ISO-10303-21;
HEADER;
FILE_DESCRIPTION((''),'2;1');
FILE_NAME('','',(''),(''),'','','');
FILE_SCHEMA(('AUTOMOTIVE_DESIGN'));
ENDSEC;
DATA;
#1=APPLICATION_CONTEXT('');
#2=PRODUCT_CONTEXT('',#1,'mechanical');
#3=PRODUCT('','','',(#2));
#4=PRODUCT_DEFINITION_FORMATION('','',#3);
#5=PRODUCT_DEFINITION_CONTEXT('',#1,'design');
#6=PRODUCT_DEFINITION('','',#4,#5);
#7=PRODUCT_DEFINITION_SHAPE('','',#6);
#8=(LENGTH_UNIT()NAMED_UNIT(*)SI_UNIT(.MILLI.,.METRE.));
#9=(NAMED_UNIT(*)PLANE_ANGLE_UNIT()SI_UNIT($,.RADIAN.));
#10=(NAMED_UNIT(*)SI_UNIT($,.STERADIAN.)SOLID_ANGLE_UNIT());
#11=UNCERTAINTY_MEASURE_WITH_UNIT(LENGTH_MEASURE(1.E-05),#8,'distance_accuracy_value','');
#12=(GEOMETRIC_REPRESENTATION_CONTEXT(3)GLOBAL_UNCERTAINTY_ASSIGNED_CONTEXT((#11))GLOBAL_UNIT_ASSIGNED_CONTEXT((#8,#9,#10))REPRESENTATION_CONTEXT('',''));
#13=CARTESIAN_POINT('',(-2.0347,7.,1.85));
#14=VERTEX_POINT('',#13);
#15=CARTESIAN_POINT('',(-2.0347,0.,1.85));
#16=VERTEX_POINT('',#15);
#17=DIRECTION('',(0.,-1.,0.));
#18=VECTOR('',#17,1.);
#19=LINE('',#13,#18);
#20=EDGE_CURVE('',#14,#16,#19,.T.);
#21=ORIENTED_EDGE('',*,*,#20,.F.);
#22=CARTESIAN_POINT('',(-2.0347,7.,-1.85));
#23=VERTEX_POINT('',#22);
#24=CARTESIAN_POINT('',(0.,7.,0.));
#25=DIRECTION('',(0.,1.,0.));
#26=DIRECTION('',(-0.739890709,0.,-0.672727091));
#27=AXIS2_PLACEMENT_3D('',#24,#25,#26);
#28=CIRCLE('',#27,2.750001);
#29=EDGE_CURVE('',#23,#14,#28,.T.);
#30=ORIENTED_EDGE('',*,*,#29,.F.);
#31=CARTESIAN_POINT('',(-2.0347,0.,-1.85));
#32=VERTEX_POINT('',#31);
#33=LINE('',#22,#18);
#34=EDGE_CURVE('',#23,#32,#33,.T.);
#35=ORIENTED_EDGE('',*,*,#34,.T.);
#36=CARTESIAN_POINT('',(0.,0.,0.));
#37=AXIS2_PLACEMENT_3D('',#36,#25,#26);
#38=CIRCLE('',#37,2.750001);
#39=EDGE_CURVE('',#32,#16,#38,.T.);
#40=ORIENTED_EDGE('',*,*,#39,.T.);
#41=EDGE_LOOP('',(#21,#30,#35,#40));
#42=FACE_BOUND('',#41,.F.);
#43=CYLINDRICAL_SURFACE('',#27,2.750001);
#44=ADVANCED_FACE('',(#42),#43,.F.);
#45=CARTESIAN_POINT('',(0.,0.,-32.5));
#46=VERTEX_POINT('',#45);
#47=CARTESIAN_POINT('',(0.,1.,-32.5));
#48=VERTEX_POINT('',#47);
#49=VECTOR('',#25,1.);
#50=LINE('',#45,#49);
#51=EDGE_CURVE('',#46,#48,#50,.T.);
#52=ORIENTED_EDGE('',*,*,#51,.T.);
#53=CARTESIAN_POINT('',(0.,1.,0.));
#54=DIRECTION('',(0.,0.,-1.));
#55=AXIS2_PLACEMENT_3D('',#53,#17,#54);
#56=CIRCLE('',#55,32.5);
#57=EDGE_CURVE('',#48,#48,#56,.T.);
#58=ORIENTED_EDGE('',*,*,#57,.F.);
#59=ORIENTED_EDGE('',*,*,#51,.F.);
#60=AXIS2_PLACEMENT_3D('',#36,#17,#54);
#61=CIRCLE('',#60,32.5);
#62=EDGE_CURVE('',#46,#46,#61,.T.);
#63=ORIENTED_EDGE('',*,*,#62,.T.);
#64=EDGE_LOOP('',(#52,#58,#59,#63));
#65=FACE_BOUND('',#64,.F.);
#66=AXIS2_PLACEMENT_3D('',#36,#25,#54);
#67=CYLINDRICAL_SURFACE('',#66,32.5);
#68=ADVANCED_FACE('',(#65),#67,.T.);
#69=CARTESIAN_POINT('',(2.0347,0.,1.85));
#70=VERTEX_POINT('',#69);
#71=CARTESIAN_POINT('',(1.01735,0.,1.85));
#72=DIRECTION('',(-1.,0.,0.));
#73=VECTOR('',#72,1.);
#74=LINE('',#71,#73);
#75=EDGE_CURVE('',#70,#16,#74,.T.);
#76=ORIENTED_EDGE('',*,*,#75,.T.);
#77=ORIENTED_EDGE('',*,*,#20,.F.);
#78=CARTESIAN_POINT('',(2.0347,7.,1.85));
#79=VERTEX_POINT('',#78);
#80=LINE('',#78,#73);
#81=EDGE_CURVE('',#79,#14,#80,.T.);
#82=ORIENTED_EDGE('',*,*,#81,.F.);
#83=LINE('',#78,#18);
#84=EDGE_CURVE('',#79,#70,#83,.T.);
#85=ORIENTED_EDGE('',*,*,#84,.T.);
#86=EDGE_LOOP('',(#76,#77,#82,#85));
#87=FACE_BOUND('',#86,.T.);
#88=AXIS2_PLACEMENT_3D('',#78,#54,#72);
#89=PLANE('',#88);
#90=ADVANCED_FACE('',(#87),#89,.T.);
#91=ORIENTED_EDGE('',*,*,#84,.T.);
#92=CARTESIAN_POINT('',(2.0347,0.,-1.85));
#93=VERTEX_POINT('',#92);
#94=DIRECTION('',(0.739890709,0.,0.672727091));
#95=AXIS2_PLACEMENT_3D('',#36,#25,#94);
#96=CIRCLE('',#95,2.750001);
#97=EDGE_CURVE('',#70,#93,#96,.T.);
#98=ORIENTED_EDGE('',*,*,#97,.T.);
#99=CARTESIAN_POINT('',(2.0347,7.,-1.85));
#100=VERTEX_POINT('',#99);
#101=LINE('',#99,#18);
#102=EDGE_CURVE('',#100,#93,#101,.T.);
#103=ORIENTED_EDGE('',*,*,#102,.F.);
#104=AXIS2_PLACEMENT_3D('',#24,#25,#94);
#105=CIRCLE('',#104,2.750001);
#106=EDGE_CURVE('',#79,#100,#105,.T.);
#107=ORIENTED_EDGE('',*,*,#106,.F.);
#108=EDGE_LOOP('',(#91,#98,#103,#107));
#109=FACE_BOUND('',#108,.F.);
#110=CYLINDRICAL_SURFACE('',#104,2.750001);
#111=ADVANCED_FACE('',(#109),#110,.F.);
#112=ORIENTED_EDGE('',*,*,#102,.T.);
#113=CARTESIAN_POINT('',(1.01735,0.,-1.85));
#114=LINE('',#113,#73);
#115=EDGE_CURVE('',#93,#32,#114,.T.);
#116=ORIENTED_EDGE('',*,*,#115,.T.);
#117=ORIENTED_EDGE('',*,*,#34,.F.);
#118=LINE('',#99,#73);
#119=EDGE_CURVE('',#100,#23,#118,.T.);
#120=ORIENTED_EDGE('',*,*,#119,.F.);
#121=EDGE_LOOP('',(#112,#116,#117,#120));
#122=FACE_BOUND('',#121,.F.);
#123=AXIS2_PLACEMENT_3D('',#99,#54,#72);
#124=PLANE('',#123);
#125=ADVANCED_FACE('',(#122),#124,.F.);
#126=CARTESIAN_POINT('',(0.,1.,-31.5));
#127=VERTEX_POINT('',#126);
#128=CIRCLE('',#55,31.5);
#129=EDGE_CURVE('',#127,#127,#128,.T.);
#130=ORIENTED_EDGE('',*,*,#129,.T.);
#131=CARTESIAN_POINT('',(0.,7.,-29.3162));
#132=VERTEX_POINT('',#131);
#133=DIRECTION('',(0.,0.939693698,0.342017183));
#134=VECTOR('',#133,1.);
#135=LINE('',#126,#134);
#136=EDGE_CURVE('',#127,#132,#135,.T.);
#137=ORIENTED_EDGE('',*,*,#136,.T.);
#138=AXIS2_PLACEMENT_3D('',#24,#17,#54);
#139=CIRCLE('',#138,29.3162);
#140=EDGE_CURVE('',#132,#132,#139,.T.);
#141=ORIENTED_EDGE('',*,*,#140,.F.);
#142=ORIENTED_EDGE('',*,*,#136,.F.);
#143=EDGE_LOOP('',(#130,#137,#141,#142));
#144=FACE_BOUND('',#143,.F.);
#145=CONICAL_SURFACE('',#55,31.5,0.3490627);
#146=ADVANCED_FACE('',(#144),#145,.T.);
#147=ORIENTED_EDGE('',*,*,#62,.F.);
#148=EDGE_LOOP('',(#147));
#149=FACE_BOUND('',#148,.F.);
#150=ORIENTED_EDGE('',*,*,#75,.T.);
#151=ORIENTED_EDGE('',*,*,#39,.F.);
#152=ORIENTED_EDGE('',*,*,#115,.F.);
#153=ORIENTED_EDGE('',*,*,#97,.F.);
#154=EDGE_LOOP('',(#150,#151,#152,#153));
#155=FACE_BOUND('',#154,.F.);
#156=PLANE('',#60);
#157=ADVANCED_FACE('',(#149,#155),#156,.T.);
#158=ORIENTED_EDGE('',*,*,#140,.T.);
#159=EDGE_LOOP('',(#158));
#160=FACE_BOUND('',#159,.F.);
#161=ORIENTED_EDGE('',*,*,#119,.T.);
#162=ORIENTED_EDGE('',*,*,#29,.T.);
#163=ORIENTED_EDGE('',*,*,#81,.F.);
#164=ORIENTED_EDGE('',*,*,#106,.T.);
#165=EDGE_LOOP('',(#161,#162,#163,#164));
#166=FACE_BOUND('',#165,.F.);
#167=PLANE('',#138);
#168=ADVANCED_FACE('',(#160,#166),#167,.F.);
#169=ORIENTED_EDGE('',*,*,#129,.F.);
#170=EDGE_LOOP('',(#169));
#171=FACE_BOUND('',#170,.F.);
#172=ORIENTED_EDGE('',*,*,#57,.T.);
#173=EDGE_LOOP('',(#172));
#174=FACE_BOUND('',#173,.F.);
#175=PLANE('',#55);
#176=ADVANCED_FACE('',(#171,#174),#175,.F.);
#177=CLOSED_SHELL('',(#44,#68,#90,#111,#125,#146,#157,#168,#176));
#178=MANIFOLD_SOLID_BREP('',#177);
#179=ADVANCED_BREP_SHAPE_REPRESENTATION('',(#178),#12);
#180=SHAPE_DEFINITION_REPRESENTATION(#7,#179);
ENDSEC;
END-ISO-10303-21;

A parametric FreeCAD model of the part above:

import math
import FreeCAD as App
import Part
import Sketcher

V = App.Vector
Q = App.Units.Quantity


def add_polygon(sketch, points):
    """Adds a closed chain of lines whose ends are joined by coincident constraints."""
    first, n = sketch.GeometryCount, len(points)
    for a, b in zip(points, points[1:] + points[:1]):
        sketch.addGeometry(Part.LineSegment(App.Vector(*a, 0), App.Vector(*b, 0)), False)
    for i in range(n):
        sketch.addConstraint(Sketcher.Constraint("Coincident", first + i, 2, first + (i + 1) % n, 1))

doc = App.newDocument("Part")
body = doc.addObject("PartDesign::Body", "Body")

# Sketch on YZ plane
sketch1 = body.newObject("Sketcher::SketchObject", "Sketch")
sketch1.AttachmentSupport = (doc.getObject("YZ_Plane"), [""])
sketch1.MapMode = "FlatFace"
add_polygon(sketch1, [(7, 0), (0, 0), (0, -32.5), (1, -32.5), (1, -31.5), (7, -29.3)])  # lines 0-5
sketch1.addConstraint(Sketcher.Constraint("Horizontal", 0))
sketch1.addConstraint(Sketcher.Constraint("Vertical", 1))
sketch1.addConstraint(Sketcher.Constraint("Horizontal", 2))
sketch1.addConstraint(Sketcher.Constraint("Vertical", 3))
sketch1.addConstraint(Sketcher.Constraint("Vertical", 5))
sketch1.addConstraint(Sketcher.Constraint("Coincident", 0, 2, -1, 1))
sketch1.addConstraint(Sketcher.Constraint("Equal", 2, 3))
sketch1.addConstraint(Sketcher.Constraint("DistanceX", 0, 2, 0, 1, 7.0))
sketch1.addConstraint(Sketcher.Constraint("DistanceX", 2, 1, 2, 2, 1.0))
sketch1.addConstraint(Sketcher.Constraint("Angle", 4, Q("19.9998 deg")))
sketch1.addConstraint(Sketcher.Constraint("DistanceY", 1, 2, 1, 1, 32.5))
revolution = body.newObject("PartDesign::Revolution", "Revolution")
revolution.Profile = sketch1
revolution.ReferenceAxis = (sketch1, ["H_Axis"])
revolution.Angle = 360

# Sketch on XZ plane
sketch2 = body.newObject("Sketcher::SketchObject", "Sketch001")
sketch2.AttachmentSupport = (doc.getObject("XZ_Plane"), [""])
sketch2.MapMode = "FlatFace"
sketch2.AttachmentOffset = App.Placement(V(0, 0, -7), App.Rotation())
sketch2.addGeometry(Part.ArcOfCircle(Part.Circle(V(0, 0, 0), V(0, 0, 1), 2.8), math.radians(-42), math.radians(42)), False)
sketch2.addGeometry(Part.LineSegment(V(2, -1.9, 0), V(-2, -1.9, 0)), False)
sketch2.addGeometry(Part.ArcOfCircle(Part.Circle(V(0, 0, 0), V(0, 0, 1), 2.8), math.radians(138), math.radians(222)), False)
sketch2.addGeometry(Part.LineSegment(V(-2, 1.9, 0), V(2, 1.9, 0)), False)
sketch2.addConstraint(Sketcher.Constraint("Coincident", 0, 1, 1, 1))
sketch2.addConstraint(Sketcher.Constraint("Coincident", 1, 2, 2, 2))
sketch2.addConstraint(Sketcher.Constraint("Coincident", 2, 1, 3, 1))
sketch2.addConstraint(Sketcher.Constraint("Coincident", 3, 2, 0, 2))
sketch2.addConstraint(Sketcher.Constraint("Horizontal", 1))
sketch2.addConstraint(Sketcher.Constraint("Horizontal", 3))
sketch2.addConstraint(Sketcher.Constraint("Coincident", 0, 3, -1, 1))
sketch2.addConstraint(Sketcher.Constraint("Coincident", 2, 3, -1, 1))
sketch2.addConstraint(Sketcher.Constraint("Equal", 0, 2))
sketch2.addConstraint(Sketcher.Constraint("Vertical", 1, 2, 2, 1))
sketch2.addConstraint(Sketcher.Constraint("DistanceY", 1, 2, 2, 1, 3.7))
sketch2.addConstraint(Sketcher.Constraint("Radius", 0, 2.75))
pocket1 = body.newObject("PartDesign::Pocket", "Pocket")
pocket1.Profile = sketch2
pocket1.Type = "ThroughAll"
pocket1.Reversed = True

doc.recompute()
